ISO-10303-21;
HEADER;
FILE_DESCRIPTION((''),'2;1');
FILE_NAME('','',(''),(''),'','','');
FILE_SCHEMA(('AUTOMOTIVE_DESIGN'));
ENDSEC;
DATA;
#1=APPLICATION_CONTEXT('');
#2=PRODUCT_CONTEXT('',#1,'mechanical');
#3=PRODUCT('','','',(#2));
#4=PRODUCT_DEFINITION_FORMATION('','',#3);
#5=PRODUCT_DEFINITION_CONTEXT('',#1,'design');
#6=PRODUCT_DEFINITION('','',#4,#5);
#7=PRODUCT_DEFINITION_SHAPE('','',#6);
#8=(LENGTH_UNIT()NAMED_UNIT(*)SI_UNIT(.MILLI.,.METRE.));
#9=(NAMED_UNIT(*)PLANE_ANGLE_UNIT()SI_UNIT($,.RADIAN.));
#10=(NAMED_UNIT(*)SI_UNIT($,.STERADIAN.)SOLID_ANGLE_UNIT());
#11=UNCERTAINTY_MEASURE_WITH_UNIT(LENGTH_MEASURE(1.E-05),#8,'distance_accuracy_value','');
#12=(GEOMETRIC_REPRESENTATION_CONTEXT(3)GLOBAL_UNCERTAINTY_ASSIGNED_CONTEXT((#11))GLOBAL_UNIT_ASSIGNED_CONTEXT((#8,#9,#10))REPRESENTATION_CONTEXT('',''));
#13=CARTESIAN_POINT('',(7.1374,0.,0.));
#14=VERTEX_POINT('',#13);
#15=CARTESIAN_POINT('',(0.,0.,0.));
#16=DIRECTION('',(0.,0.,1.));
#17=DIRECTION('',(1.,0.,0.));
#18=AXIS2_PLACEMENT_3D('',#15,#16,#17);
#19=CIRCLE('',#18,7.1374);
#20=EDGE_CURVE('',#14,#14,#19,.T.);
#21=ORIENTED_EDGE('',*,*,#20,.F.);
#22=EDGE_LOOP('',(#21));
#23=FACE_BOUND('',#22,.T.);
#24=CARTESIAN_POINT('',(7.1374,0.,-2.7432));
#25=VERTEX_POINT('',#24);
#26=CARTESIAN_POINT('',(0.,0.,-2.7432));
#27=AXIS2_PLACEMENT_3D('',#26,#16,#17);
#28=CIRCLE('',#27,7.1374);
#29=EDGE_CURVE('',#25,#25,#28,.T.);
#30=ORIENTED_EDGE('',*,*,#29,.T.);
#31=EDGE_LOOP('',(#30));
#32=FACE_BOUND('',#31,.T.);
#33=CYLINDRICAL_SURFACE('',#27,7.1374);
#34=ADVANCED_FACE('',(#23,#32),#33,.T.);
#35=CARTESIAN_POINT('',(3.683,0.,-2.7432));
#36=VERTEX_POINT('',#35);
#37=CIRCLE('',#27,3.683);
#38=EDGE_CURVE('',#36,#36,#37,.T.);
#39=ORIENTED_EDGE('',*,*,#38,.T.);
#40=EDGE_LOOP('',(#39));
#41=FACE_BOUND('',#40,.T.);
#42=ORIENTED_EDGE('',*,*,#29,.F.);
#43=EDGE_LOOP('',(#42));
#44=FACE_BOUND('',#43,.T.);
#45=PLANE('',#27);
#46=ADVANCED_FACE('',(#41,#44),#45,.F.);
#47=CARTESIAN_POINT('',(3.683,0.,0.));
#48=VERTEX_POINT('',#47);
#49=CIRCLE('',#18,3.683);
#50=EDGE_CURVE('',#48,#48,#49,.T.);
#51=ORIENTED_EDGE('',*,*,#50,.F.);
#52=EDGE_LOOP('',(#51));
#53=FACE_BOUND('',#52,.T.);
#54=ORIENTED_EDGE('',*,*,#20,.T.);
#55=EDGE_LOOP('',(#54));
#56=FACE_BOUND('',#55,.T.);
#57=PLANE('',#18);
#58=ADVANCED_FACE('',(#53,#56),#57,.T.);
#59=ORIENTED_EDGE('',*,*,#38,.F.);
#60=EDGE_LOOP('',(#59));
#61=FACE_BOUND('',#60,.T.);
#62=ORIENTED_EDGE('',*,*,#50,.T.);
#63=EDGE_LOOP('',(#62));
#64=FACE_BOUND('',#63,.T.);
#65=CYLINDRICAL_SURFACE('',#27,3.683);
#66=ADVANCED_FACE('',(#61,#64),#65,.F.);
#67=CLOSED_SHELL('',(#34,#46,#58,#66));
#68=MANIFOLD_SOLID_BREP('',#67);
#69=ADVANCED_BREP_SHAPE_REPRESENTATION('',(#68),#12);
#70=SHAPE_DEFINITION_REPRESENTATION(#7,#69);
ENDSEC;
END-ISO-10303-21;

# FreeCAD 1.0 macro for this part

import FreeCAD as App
import Part
import Sketcher

V = App.Vector
Q = App.Units.Quantity

doc = App.newDocument("Part")
body = doc.addObject("PartDesign::Body", "Body")

sketch1 = body.newObject("Sketcher::SketchObject", "Sketch")
sketch1.AttachmentSupport = (doc.getObject("XY_Plane"), [""])
sketch1.MapMode = "FlatFace"
sketch1.addGeometry(Part.Circle(V(0, 0, 0), V(0, 0, 1), 7.1), False)
sketch1.addGeometry(Part.Circle(V(0, 0, 0), V(0, 0, 1), 3.7), False)
sketch1.addConstraint(Sketcher.Constraint("Coincident", 0, 3, -1, 1))
sketch1.addConstraint(Sketcher.Constraint("Coincident", 1, 3, -1, 1))
sketch1.addConstraint(Sketcher.Constraint("Diameter", 1, Q("0.29 in")))
sketch1.addConstraint(Sketcher.Constraint("Diameter", 0, Q("0.562 in")))
pad1 = body.newObject("PartDesign::Pad", "Pad")
pad1.Profile = sketch1
pad1.Length = Q("0.108 in")
pad1.Reversed = True

doc.recompute()
